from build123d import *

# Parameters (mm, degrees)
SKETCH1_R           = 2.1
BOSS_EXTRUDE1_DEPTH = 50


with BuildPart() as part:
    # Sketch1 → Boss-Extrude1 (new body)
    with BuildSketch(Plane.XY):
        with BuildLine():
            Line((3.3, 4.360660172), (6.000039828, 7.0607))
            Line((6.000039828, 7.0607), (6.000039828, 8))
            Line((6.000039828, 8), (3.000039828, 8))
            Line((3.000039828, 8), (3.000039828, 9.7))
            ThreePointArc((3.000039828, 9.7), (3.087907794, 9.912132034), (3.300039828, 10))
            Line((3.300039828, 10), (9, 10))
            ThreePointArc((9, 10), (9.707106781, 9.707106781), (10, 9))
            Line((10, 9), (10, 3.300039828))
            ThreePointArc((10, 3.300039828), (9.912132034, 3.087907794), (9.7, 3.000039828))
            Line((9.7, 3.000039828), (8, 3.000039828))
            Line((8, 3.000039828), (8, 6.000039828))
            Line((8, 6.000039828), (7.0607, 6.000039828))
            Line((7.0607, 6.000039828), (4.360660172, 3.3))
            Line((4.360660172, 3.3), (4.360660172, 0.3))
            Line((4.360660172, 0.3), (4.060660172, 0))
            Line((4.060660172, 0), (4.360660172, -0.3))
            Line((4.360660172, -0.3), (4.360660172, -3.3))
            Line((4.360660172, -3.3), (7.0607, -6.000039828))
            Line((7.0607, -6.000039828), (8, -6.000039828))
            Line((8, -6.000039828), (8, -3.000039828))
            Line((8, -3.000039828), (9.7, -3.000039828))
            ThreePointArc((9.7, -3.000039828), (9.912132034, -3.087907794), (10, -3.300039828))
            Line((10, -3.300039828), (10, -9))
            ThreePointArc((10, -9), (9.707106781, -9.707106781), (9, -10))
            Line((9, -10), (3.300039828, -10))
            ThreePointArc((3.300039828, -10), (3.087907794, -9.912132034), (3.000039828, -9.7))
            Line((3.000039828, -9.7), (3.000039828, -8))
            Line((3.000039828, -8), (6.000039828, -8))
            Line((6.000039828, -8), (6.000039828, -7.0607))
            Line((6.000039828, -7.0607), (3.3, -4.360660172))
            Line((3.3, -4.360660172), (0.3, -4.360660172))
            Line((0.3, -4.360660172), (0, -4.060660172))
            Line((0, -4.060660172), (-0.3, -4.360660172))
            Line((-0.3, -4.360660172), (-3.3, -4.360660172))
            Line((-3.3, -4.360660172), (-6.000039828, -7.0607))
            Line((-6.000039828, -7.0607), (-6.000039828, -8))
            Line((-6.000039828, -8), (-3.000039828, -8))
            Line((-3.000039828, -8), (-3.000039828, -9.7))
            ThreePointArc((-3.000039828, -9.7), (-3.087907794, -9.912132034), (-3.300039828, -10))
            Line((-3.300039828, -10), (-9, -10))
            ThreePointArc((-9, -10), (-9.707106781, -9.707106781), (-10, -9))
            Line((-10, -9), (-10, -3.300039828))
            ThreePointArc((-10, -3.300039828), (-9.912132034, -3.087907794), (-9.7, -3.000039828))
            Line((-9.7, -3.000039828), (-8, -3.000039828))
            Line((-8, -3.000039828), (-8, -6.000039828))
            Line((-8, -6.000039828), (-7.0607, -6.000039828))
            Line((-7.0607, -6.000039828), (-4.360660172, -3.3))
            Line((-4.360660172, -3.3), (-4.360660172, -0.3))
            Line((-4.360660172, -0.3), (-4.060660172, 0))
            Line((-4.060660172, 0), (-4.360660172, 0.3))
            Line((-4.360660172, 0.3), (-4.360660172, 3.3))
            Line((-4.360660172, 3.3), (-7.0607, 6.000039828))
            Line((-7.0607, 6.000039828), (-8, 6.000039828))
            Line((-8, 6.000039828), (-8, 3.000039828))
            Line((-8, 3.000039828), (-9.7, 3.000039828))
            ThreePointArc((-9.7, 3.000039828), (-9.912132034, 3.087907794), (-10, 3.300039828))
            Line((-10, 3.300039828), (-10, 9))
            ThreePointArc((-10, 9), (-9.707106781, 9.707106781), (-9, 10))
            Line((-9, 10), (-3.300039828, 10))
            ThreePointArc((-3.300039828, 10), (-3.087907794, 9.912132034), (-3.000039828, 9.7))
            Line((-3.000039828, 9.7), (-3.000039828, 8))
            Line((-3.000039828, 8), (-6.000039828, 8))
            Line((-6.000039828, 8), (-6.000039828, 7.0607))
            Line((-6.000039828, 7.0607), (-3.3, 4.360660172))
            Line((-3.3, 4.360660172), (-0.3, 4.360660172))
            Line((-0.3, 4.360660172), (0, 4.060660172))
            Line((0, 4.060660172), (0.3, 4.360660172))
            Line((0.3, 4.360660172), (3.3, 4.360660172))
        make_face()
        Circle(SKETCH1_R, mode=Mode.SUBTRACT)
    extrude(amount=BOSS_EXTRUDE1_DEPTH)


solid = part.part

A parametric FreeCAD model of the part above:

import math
import FreeCAD as App
import Part
import Sketcher
from FreeCAD import Vector
Q = App.Units.Quantity

doc = App.newDocument("Part")
params = doc.addObject("Spreadsheet::Sheet", "Params")
for row, (alias, value) in enumerate([
    ("sketch1_radius", "1 mm"),
    ("sketch1_diameter", "4.2 mm"),
    ("sketch1_radius2", "0.3 mm"),
    ("sketch1_width", "3 mm"),
    ("sketch1_width2", "1.7 mm"),
    ("pad1_length", "50 mm"),
], start=1):
    params.set(f"A{row}", alias)
    params.set(f"B{row}", "=" + value)
    params.setAlias(f"B{row}", alias)

body = doc.addObject("PartDesign::Body", "Body")

# Sketch on XY plane
sketch1 = body.newObject("Sketcher::SketchObject", "Sketch")
sketch1.AttachmentSupport = (doc.getObject("XY_Plane"), [""])
sketch1.MapMode = "FlatFace"
sketch1.addGeometry([
    Part.LineSegment(Vector(6, 7.06, 0), Vector(3.3, 4.36, 0)),  # 0
    Part.LineSegment(Vector(3.3, 4.36, 0), Vector(0.3, 4.36, 0)),  # 1
    Part.LineSegment(Vector(0.3, 4.36, 0), Vector(0, 4.06, 0)),  # 2
    Part.LineSegment(Vector(0, 4.06, 0), Vector(-0.3, 4.36, 0)),  # 3
    Part.LineSegment(Vector(-0.3, 4.36, 0), Vector(-3.3, 4.36, 0)),  # 4
    Part.LineSegment(Vector(-3.3, 4.36, 0), Vector(-6, 7.06, 0)),  # 5
    Part.LineSegment(Vector(-6, 7.06, 0), Vector(-6, 8, 0)),  # 6
    Part.LineSegment(Vector(-6, 8, 0), Vector(-3, 8, 0)),  # 7
    Part.LineSegment(Vector(-3, 8, 0), Vector(-3, 9.7, 0)),  # 8
    Part.ArcOfCircle(Part.Circle(Vector(-3.3, 9.7, 0), Vector(0, 0, 1), 0.3), math.radians(0), math.radians(90)),  # 9
    Part.LineSegment(Vector(-3.3, 10, 0), Vector(-9, 10, 0)),  # 10
    Part.ArcOfCircle(Part.Circle(Vector(-9, 9, 0), Vector(0, 0, 1), 1), math.radians(90), math.radians(180)),  # 11
    Part.LineSegment(Vector(-10, 9, 0), Vector(-10, 3.3, 0)),  # 12
    Part.ArcOfCircle(Part.Circle(Vector(-9.7, 3.3, 0), Vector(0, 0, 1), 0.3), math.radians(-180), math.radians(-90)),  # 13
    Part.LineSegment(Vector(-9.7, 3, 0), Vector(-8, 3, 0)),  # 14
    Part.LineSegment(Vector(-8, 3, 0), Vector(-8, 6, 0)),  # 15
    Part.LineSegment(Vector(-8, 6, 0), Vector(-7.06, 6, 0)),  # 16
    Part.LineSegment(Vector(-7.06, 6, 0), Vector(-4.36, 3.3, 0)),  # 17
    Part.LineSegment(Vector(-4.36, 3.3, 0), Vector(-4.36, 0.3, 0)),  # 18
    Part.LineSegment(Vector(-4.36, 0.3, 0), Vector(-4.06, 0, 0)),  # 19
    Part.LineSegment(Vector(-4.06, 0, 0), Vector(-4.36, -0.3, 0)),  # 20
    Part.LineSegment(Vector(-4.36, -0.3, 0), Vector(-4.36, -3.3, 0)),  # 21
    Part.LineSegment(Vector(-4.36, -3.3, 0), Vector(-7.06, -6, 0)),  # 22
    Part.LineSegment(Vector(-7.06, -6, 0), Vector(-8, -6, 0)),  # 23
    Part.LineSegment(Vector(-8, -6, 0), Vector(-8, -3, 0)),  # 24
    Part.LineSegment(Vector(-8, -3, 0), Vector(-9.7, -3, 0)),  # 25
    Part.ArcOfCircle(Part.Circle(Vector(-9.7, -3.3, 0), Vector(0, 0, 1), 0.3), math.radians(90), math.radians(180)),  # 26
    Part.LineSegment(Vector(-10, -3.3, 0), Vector(-10, -9, 0)),  # 27
    Part.ArcOfCircle(Part.Circle(Vector(-9, -9, 0), Vector(0, 0, 1), 1), math.radians(-180), math.radians(-90)),  # 28
    Part.LineSegment(Vector(-9, -10, 0), Vector(-3.3, -10, 0)),  # 29
    Part.ArcOfCircle(Part.Circle(Vector(-3.3, -9.7, 0), Vector(0, 0, 1), 0.3), math.radians(-90), math.radians(0)),  # 30
    Part.LineSegment(Vector(-3, -9.7, 0), Vector(-3, -8, 0)),  # 31
    Part.LineSegment(Vector(-3, -8, 0), Vector(-6, -8, 0)),  # 32
    Part.LineSegment(Vector(-6, -8, 0), Vector(-6, -7.06, 0)),  # 33
    Part.LineSegment(Vector(-6, -7.06, 0), Vector(-3.3, -4.36, 0)),  # 34
    Part.LineSegment(Vector(-3.3, -4.36, 0), Vector(-0.3, -4.36, 0)),  # 35
    Part.LineSegment(Vector(-0.3, -4.36, 0), Vector(0, -4.06, 0)),  # 36
    Part.LineSegment(Vector(0, -4.06, 0), Vector(0.3, -4.36, 0)),  # 37
    Part.LineSegment(Vector(0.3, -4.36, 0), Vector(3.3, -4.36, 0)),  # 38
    Part.LineSegment(Vector(3.3, -4.36, 0), Vector(6, -7.06, 0)),  # 39
    Part.LineSegment(Vector(6, -7.06, 0), Vector(6, -8, 0)),  # 40
    Part.LineSegment(Vector(6, -8, 0), Vector(3, -8, 0)),  # 41
    Part.LineSegment(Vector(3, -8, 0), Vector(3, -9.7, 0)),  # 42
    Part.ArcOfCircle(Part.Circle(Vector(3.3, -9.7, 0), Vector(0, 0, 1), 0.3), math.radians(-180), math.radians(-90)),  # 43
    Part.LineSegment(Vector(3.3, -10, 0), Vector(9, -10, 0)),  # 44
    Part.ArcOfCircle(Part.Circle(Vector(9, -9, 0), Vector(0, 0, 1), 1), math.radians(-90), math.radians(0)),  # 45
    Part.LineSegment(Vector(10, -9, 0), Vector(10, -3.3, 0)),  # 46
    Part.ArcOfCircle(Part.Circle(Vector(9.7, -3.3, 0), Vector(0, 0, 1), 0.3), math.radians(0), math.radians(90)),  # 47
    Part.LineSegment(Vector(9.7, -3, 0), Vector(8, -3, 0)),  # 48
    Part.LineSegment(Vector(8, -3, 0), Vector(8, -6, 0)),  # 49
    Part.LineSegment(Vector(8, -6, 0), Vector(7.06, -6, 0)),  # 50
    Part.LineSegment(Vector(7.06, -6, 0), Vector(4.36, -3.3, 0)),  # 51
    Part.LineSegment(Vector(4.36, -3.3, 0), Vector(4.36, -0.3, 0)),  # 52
    Part.LineSegment(Vector(4.36, -0.3, 0), Vector(4.06, 0, 0)),  # 53
    Part.LineSegment(Vector(4.06, 0, 0), Vector(4.36, 0.3, 0)),  # 54
    Part.LineSegment(Vector(4.36, 0.3, 0), Vector(4.36, 3.3, 0)),  # 55
    Part.LineSegment(Vector(4.36, 3.3, 0), Vector(7.06, 6, 0)),  # 56
    Part.LineSegment(Vector(7.06, 6, 0), Vector(8, 6, 0)),  # 57
    Part.LineSegment(Vector(8, 6, 0), Vector(8, 3, 0)),  # 58
    Part.LineSegment(Vector(8, 3, 0), Vector(9.7, 3, 0)),  # 59
    Part.ArcOfCircle(Part.Circle(Vector(9.7, 3.3, 0), Vector(0, 0, 1), 0.3), math.radians(-90), math.radians(0)),  # 60
    Part.LineSegment(Vector(10, 3.3, 0), Vector(10, 9, 0)),  # 61
    Part.ArcOfCircle(Part.Circle(Vector(9, 9, 0), Vector(0, 0, 1), 1), math.radians(0), math.radians(90)),  # 62
    Part.LineSegment(Vector(9, 10, 0), Vector(3.3, 10, 0)),  # 63
    Part.ArcOfCircle(Part.Circle(Vector(3.3, 9.7, 0), Vector(0, 0, 1), 0.3), math.radians(90), math.radians(180)),  # 64
    Part.LineSegment(Vector(3, 9.7, 0), Vector(3, 8, 0)),  # 65
    Part.LineSegment(Vector(3, 8, 0), Vector(6, 8, 0)),  # 66
    Part.LineSegment(Vector(6, 8, 0), Vector(6, 7.06, 0)),  # 67
    Part.Circle(Vector(0, 0, 0), Vector(0, 0, 1), 2.1),  # 68
], False)
sketch1.addConstraint([
    Sketcher.Constraint("Coincident", 0, 2, 1, 1),
    Sketcher.Constraint("Coincident", 1, 2, 2, 1),
    Sketcher.Constraint("Coincident", 2, 2, 3, 1),
    Sketcher.Constraint("Coincident", 3, 2, 4, 1),
    Sketcher.Constraint("Coincident", 4, 2, 5, 1),
    Sketcher.Constraint("Coincident", 5, 2, 6, 1),
    Sketcher.Constraint("Coincident", 6, 2, 7, 1),
    Sketcher.Constraint("Coincident", 7, 2, 8, 1),
    Sketcher.Constraint("Tangent", 8, 2, 9, 1),
    Sketcher.Constraint("Tangent", 9, 2, 10, 1),
    Sketcher.Constraint("Tangent", 10, 2, 11, 1),
    Sketcher.Constraint("Tangent", 11, 2, 12, 1),
    Sketcher.Constraint("Tangent", 12, 2, 13, 1),
    Sketcher.Constraint("Tangent", 13, 2, 14, 1),
    Sketcher.Constraint("Coincident", 14, 2, 15, 1),
    Sketcher.Constraint("Coincident", 15, 2, 16, 1),
    Sketcher.Constraint("Coincident", 16, 2, 17, 1),
    Sketcher.Constraint("Coincident", 17, 2, 18, 1),
    Sketcher.Constraint("Coincident", 18, 2, 19, 1),
    Sketcher.Constraint("Coincident", 19, 2, 20, 1),
    Sketcher.Constraint("Coincident", 20, 2, 21, 1),
    Sketcher.Constraint("Coincident", 21, 2, 22, 1),
    Sketcher.Constraint("Coincident", 22, 2, 23, 1),
    Sketcher.Constraint("Coincident", 23, 2, 24, 1),
    Sketcher.Constraint("Coincident", 24, 2, 25, 1),
    Sketcher.Constraint("Tangent", 25, 2, 26, 1),
    Sketcher.Constraint("Tangent", 26, 2, 27, 1),
    Sketcher.Constraint("Tangent", 27, 2, 28, 1),
    Sketcher.Constraint("Tangent", 28, 2, 29, 1),
    Sketcher.Constraint("Tangent", 29, 2, 30, 1),
    Sketcher.Constraint("Tangent", 30, 2, 31, 1),
    Sketcher.Constraint("Coincident", 31, 2, 32, 1),
    Sketcher.Constraint("Coincident", 32, 2, 33, 1),
    Sketcher.Constraint("Coincident", 33, 2, 34, 1),
    Sketcher.Constraint("Coincident", 34, 2, 35, 1),
    Sketcher.Constraint("Coincident", 35, 2, 36, 1),
    Sketcher.Constraint("Coincident", 36, 2, 37, 1),
    Sketcher.Constraint("Coincident", 37, 2, 38, 1),
    Sketcher.Constraint("Coincident", 38, 2, 39, 1),
    Sketcher.Constraint("Coincident", 39, 2, 40, 1),
    Sketcher.Constraint("Coincident", 40, 2, 41, 1),
    Sketcher.Constraint("Coincident", 41, 2, 42, 1),
    Sketcher.Constraint("Tangent", 42, 2, 43, 1),
    Sketcher.Constraint("Tangent", 43, 2, 44, 1),
    Sketcher.Constraint("Tangent", 44, 2, 45, 1),
    Sketcher.Constraint("Tangent", 45, 2, 46, 1),
    Sketcher.Constraint("Tangent", 46, 2, 47, 1),
    Sketcher.Constraint("Tangent", 47, 2, 48, 1),
    Sketcher.Constraint("Coincident", 48, 2, 49, 1),
    Sketcher.Constraint("Coincident", 49, 2, 50, 1),
    Sketcher.Constraint("Coincident", 50, 2, 51, 1),
    Sketcher.Constraint("Coincident", 51, 2, 52, 1),
    Sketcher.Constraint("Coincident", 52, 2, 53, 1),
    Sketcher.Constraint("Coincident", 53, 2, 54, 1),
    Sketcher.Constraint("Coincident", 54, 2, 55, 1),
    Sketcher.Constraint("Coincident", 55, 2, 56, 1),
    Sketcher.Constraint("Coincident", 56, 2, 57, 1),
    Sketcher.Constraint("Coincident", 57, 2, 58, 1),
    Sketcher.Constraint("Coincident", 58, 2, 59, 1),
    Sketcher.Constraint("Tangent", 59, 2, 60, 1),
    Sketcher.Constraint("Tangent", 60, 2, 61, 1),
    Sketcher.Constraint("Tangent", 61, 2, 62, 1),
    Sketcher.Constraint("Tangent", 62, 2, 63, 1),
    Sketcher.Constraint("Tangent", 63, 2, 64, 1),
    Sketcher.Constraint("Tangent", 64, 2, 65, 1),
    Sketcher.Constraint("Coincident", 65, 2, 66, 1),
    Sketcher.Constraint("Coincident", 66, 2, 67, 1),
    Sketcher.Constraint("Coincident", 67, 2, 0, 1),
    Sketcher.Constraint("Horizontal", 1),
    Sketcher.Constraint("Horizontal", 4),
    Sketcher.Constraint("Vertical", 6),
    Sketcher.Constraint("Horizontal", 7),
    Sketcher.Constraint("Vertical", 8),
    Sketcher.Constraint("Horizontal", 10),
    Sketcher.Constraint("Vertical", 12),
    Sketcher.Constraint("Horizontal", 14),
    Sketcher.Constraint("Vertical", 15),
    Sketcher.Constraint("Horizontal", 16),
    Sketcher.Constraint("Vertical", 18),
    Sketcher.Constraint("Vertical", 21),
    Sketcher.Constraint("Horizontal", 23),
    Sketcher.Constraint("Vertical", 24),
    Sketcher.Constraint("Horizontal", 25),
    Sketcher.Constraint("Vertical", 27),
    Sketcher.Constraint("Horizontal", 29),
    Sketcher.Constraint("Vertical", 31),
    Sketcher.Constraint("Horizontal", 32),
    Sketcher.Constraint("Vertical", 33),
    Sketcher.Constraint("Horizontal", 35),
    Sketcher.Constraint("Horizontal", 38),
    Sketcher.Constraint("Vertical", 40),
    Sketcher.Constraint("Horizontal", 41),
    Sketcher.Constraint("Vertical", 42),
    Sketcher.Constraint("Horizontal", 44),
    Sketcher.Constraint("Vertical", 46),
    Sketcher.Constraint("Horizontal", 48),
    Sketcher.Constraint("Vertical", 49),
    Sketcher.Constraint("Horizontal", 50),
    Sketcher.Constraint("Vertical", 52),
    Sketcher.Constraint("Vertical", 55),
    Sketcher.Constraint("Horizontal", 57),
    Sketcher.Constraint("Vertical", 58),
    Sketcher.Constraint("Horizontal", 59),
    Sketcher.Constraint("Vertical", 61),
    Sketcher.Constraint("Horizontal", 63),
    Sketcher.Constraint("Vertical", 65),
    Sketcher.Constraint("Horizontal", 66),
    Sketcher.Constraint("Vertical", 67),
    Sketcher.Constraint("Coincident", 68, 3, -1, 1),
    Sketcher.Constraint("Equal", 9, 13),
    Sketcher.Constraint("Equal", 13, 26),
    Sketcher.Constraint("Equal", 11, 28),
    Sketcher.Constraint("Equal", 26, 30),
    Sketcher.Constraint("Equal", 30, 43),
    Sketcher.Constraint("Equal", 28, 45),
    Sketcher.Constraint("Equal", 43, 47),
    Sketcher.Constraint("Equal", 47, 60),
    Sketcher.Constraint("Equal", 45, 62),
    Sketcher.Constraint("Equal", 60, 64),
    Sketcher.Constraint("Symmetric", 9, 3, 43, 3, -1, 1),
    Sketcher.Constraint("Symmetric", 13, 3, 47, 3, -1, 1),
    Sketcher.Constraint("Symmetric", 26, 3, 60, 3, -1, 1),
    Sketcher.Constraint("Symmetric", 30, 3, 64, 3, -1, 1),
    Sketcher.Constraint("Symmetric", 0, 2, 34, 2, -1, 1),
    Sketcher.Constraint("Symmetric", 2, 2, 36, 2, -1, 1),
    Sketcher.Constraint("Symmetric", 3, 2, 37, 2, -1, 1),
    Sketcher.Constraint("Symmetric", 5, 2, 39, 2, -1, 1),
    Sketcher.Constraint("Symmetric", 15, 2, 49, 2, -1, 1),
    Sketcher.Constraint("Symmetric", 17, 2, 51, 2, -1, 1),
    Sketcher.Constraint("Symmetric", 19, 2, 53, 2, -1, 1),
    Sketcher.Constraint("Symmetric", 20, 2, 54, 2, -1, 1),
    Sketcher.Constraint("Symmetric", 22, 2, 56, 2, -1, 1),
    Sketcher.Constraint("Symmetric", 32, 2, 66, 2, -1, 1),
    Sketcher.Constraint("Symmetric", 30, 3, 43, 3, -2),
    Sketcher.Constraint("Symmetric", 26, 3, 47, 3, -2),
    Sketcher.Constraint("Symmetric", 1, 2, 3, 2, -2),
    Sketcher.Constraint("Symmetric", 33, 2, 39, 2, -2),
    Sketcher.Constraint("Symmetric", 23, 2, 49, 2, -2),
    Sketcher.Constraint("Symmetric", 21, 2, 51, 2, -2),
    Sketcher.Constraint("PointOnObject", 2, 2, -2),
    Sketcher.Constraint("PointOnObject", 19, 2, -1),
    Sketcher.Constraint("Parallel", 0, 2),
    Sketcher.Constraint("Perpendicular", 2, 3),
    Sketcher.Constraint("Parallel", 3, 5),
    Sketcher.Constraint("Parallel", 5, 17),
    Sketcher.Constraint("Parallel", 17, 19),
    Sketcher.Constraint("Perpendicular", 19, 20),
    Sketcher.Constraint("Parallel", 20, 22),
    Sketcher.Constraint("Parallel", 22, 34),
    Sketcher.Constraint("Parallel", 34, 36),
    Sketcher.Constraint("Parallel", 37, 39),
    Sketcher.Constraint("Parallel", 39, 51),
    Sketcher.Constraint("Parallel", 51, 53),
    Sketcher.Constraint("Parallel", 54, 56),
    Sketcher.Constraint("Horizontal", 32, 2, 40, 2),
    Sketcher.Constraint("Horizontal", 7, 2, 65, 2),
    Sketcher.Constraint("Vertical", 49, 2, 57, 2),
    Sketcher.Constraint("Equal", 4, 7),
    Sketcher.Constraint("Equal", 57, 6),
    Sketcher.Constraint("Equal", 59, 8),
    Sketcher.Constraint("Equal", 63, 12),
    Sketcher.Constraint("Equal", 66, 15),
    Sketcher.Constraint("Equal", 15, 18),
    Sketcher.Constraint("Equal", 5, 17),
    Sketcher.Constraint("Equal", 3, 19),
    Sketcher.Constraint("Radius", 11, Q("1 mm")),
    Sketcher.Constraint("Diameter", 68, Q("4.2 mm")),
    Sketcher.Constraint("Radius", 9, Q("0.3 mm")),
    Sketcher.Constraint("DistanceX", 1, 2, 1, 1, Q("3 mm")),
    Sketcher.Constraint("DistanceX", 14, 1, 14, 2, Q("1.7 mm")),
    Sketcher.Constraint("DistanceX", 11, 3, -1, 1, Q("9 mm")),
    Sketcher.Constraint("DistanceX", -1, 1, 0, 2, Q("3.3 mm")),
    Sketcher.Constraint("DistanceX", 16, 1, 16, 2, Q("0.9393 mm")),
    Sketcher.Constraint("DistanceX", 10, 2, 10, 1, Q("5.69996 mm")),
])
sketch1.setExpression("Constraints[165]", "Params.sketch1_radius")
sketch1.setExpression("Constraints[166]", "Params.sketch1_diameter")
sketch1.setExpression("Constraints[167]", "Params.sketch1_radius2")
sketch1.setExpression("Constraints[168]", "Params.sketch1_width")
sketch1.setExpression("Constraints[169]", "Params.sketch1_width2")
pad1 = body.newObject("PartDesign::Pad", "Pad")
pad1.Profile = sketch1
pad1.setExpression("Length", "Params.pad1_length")

doc.recompute()
